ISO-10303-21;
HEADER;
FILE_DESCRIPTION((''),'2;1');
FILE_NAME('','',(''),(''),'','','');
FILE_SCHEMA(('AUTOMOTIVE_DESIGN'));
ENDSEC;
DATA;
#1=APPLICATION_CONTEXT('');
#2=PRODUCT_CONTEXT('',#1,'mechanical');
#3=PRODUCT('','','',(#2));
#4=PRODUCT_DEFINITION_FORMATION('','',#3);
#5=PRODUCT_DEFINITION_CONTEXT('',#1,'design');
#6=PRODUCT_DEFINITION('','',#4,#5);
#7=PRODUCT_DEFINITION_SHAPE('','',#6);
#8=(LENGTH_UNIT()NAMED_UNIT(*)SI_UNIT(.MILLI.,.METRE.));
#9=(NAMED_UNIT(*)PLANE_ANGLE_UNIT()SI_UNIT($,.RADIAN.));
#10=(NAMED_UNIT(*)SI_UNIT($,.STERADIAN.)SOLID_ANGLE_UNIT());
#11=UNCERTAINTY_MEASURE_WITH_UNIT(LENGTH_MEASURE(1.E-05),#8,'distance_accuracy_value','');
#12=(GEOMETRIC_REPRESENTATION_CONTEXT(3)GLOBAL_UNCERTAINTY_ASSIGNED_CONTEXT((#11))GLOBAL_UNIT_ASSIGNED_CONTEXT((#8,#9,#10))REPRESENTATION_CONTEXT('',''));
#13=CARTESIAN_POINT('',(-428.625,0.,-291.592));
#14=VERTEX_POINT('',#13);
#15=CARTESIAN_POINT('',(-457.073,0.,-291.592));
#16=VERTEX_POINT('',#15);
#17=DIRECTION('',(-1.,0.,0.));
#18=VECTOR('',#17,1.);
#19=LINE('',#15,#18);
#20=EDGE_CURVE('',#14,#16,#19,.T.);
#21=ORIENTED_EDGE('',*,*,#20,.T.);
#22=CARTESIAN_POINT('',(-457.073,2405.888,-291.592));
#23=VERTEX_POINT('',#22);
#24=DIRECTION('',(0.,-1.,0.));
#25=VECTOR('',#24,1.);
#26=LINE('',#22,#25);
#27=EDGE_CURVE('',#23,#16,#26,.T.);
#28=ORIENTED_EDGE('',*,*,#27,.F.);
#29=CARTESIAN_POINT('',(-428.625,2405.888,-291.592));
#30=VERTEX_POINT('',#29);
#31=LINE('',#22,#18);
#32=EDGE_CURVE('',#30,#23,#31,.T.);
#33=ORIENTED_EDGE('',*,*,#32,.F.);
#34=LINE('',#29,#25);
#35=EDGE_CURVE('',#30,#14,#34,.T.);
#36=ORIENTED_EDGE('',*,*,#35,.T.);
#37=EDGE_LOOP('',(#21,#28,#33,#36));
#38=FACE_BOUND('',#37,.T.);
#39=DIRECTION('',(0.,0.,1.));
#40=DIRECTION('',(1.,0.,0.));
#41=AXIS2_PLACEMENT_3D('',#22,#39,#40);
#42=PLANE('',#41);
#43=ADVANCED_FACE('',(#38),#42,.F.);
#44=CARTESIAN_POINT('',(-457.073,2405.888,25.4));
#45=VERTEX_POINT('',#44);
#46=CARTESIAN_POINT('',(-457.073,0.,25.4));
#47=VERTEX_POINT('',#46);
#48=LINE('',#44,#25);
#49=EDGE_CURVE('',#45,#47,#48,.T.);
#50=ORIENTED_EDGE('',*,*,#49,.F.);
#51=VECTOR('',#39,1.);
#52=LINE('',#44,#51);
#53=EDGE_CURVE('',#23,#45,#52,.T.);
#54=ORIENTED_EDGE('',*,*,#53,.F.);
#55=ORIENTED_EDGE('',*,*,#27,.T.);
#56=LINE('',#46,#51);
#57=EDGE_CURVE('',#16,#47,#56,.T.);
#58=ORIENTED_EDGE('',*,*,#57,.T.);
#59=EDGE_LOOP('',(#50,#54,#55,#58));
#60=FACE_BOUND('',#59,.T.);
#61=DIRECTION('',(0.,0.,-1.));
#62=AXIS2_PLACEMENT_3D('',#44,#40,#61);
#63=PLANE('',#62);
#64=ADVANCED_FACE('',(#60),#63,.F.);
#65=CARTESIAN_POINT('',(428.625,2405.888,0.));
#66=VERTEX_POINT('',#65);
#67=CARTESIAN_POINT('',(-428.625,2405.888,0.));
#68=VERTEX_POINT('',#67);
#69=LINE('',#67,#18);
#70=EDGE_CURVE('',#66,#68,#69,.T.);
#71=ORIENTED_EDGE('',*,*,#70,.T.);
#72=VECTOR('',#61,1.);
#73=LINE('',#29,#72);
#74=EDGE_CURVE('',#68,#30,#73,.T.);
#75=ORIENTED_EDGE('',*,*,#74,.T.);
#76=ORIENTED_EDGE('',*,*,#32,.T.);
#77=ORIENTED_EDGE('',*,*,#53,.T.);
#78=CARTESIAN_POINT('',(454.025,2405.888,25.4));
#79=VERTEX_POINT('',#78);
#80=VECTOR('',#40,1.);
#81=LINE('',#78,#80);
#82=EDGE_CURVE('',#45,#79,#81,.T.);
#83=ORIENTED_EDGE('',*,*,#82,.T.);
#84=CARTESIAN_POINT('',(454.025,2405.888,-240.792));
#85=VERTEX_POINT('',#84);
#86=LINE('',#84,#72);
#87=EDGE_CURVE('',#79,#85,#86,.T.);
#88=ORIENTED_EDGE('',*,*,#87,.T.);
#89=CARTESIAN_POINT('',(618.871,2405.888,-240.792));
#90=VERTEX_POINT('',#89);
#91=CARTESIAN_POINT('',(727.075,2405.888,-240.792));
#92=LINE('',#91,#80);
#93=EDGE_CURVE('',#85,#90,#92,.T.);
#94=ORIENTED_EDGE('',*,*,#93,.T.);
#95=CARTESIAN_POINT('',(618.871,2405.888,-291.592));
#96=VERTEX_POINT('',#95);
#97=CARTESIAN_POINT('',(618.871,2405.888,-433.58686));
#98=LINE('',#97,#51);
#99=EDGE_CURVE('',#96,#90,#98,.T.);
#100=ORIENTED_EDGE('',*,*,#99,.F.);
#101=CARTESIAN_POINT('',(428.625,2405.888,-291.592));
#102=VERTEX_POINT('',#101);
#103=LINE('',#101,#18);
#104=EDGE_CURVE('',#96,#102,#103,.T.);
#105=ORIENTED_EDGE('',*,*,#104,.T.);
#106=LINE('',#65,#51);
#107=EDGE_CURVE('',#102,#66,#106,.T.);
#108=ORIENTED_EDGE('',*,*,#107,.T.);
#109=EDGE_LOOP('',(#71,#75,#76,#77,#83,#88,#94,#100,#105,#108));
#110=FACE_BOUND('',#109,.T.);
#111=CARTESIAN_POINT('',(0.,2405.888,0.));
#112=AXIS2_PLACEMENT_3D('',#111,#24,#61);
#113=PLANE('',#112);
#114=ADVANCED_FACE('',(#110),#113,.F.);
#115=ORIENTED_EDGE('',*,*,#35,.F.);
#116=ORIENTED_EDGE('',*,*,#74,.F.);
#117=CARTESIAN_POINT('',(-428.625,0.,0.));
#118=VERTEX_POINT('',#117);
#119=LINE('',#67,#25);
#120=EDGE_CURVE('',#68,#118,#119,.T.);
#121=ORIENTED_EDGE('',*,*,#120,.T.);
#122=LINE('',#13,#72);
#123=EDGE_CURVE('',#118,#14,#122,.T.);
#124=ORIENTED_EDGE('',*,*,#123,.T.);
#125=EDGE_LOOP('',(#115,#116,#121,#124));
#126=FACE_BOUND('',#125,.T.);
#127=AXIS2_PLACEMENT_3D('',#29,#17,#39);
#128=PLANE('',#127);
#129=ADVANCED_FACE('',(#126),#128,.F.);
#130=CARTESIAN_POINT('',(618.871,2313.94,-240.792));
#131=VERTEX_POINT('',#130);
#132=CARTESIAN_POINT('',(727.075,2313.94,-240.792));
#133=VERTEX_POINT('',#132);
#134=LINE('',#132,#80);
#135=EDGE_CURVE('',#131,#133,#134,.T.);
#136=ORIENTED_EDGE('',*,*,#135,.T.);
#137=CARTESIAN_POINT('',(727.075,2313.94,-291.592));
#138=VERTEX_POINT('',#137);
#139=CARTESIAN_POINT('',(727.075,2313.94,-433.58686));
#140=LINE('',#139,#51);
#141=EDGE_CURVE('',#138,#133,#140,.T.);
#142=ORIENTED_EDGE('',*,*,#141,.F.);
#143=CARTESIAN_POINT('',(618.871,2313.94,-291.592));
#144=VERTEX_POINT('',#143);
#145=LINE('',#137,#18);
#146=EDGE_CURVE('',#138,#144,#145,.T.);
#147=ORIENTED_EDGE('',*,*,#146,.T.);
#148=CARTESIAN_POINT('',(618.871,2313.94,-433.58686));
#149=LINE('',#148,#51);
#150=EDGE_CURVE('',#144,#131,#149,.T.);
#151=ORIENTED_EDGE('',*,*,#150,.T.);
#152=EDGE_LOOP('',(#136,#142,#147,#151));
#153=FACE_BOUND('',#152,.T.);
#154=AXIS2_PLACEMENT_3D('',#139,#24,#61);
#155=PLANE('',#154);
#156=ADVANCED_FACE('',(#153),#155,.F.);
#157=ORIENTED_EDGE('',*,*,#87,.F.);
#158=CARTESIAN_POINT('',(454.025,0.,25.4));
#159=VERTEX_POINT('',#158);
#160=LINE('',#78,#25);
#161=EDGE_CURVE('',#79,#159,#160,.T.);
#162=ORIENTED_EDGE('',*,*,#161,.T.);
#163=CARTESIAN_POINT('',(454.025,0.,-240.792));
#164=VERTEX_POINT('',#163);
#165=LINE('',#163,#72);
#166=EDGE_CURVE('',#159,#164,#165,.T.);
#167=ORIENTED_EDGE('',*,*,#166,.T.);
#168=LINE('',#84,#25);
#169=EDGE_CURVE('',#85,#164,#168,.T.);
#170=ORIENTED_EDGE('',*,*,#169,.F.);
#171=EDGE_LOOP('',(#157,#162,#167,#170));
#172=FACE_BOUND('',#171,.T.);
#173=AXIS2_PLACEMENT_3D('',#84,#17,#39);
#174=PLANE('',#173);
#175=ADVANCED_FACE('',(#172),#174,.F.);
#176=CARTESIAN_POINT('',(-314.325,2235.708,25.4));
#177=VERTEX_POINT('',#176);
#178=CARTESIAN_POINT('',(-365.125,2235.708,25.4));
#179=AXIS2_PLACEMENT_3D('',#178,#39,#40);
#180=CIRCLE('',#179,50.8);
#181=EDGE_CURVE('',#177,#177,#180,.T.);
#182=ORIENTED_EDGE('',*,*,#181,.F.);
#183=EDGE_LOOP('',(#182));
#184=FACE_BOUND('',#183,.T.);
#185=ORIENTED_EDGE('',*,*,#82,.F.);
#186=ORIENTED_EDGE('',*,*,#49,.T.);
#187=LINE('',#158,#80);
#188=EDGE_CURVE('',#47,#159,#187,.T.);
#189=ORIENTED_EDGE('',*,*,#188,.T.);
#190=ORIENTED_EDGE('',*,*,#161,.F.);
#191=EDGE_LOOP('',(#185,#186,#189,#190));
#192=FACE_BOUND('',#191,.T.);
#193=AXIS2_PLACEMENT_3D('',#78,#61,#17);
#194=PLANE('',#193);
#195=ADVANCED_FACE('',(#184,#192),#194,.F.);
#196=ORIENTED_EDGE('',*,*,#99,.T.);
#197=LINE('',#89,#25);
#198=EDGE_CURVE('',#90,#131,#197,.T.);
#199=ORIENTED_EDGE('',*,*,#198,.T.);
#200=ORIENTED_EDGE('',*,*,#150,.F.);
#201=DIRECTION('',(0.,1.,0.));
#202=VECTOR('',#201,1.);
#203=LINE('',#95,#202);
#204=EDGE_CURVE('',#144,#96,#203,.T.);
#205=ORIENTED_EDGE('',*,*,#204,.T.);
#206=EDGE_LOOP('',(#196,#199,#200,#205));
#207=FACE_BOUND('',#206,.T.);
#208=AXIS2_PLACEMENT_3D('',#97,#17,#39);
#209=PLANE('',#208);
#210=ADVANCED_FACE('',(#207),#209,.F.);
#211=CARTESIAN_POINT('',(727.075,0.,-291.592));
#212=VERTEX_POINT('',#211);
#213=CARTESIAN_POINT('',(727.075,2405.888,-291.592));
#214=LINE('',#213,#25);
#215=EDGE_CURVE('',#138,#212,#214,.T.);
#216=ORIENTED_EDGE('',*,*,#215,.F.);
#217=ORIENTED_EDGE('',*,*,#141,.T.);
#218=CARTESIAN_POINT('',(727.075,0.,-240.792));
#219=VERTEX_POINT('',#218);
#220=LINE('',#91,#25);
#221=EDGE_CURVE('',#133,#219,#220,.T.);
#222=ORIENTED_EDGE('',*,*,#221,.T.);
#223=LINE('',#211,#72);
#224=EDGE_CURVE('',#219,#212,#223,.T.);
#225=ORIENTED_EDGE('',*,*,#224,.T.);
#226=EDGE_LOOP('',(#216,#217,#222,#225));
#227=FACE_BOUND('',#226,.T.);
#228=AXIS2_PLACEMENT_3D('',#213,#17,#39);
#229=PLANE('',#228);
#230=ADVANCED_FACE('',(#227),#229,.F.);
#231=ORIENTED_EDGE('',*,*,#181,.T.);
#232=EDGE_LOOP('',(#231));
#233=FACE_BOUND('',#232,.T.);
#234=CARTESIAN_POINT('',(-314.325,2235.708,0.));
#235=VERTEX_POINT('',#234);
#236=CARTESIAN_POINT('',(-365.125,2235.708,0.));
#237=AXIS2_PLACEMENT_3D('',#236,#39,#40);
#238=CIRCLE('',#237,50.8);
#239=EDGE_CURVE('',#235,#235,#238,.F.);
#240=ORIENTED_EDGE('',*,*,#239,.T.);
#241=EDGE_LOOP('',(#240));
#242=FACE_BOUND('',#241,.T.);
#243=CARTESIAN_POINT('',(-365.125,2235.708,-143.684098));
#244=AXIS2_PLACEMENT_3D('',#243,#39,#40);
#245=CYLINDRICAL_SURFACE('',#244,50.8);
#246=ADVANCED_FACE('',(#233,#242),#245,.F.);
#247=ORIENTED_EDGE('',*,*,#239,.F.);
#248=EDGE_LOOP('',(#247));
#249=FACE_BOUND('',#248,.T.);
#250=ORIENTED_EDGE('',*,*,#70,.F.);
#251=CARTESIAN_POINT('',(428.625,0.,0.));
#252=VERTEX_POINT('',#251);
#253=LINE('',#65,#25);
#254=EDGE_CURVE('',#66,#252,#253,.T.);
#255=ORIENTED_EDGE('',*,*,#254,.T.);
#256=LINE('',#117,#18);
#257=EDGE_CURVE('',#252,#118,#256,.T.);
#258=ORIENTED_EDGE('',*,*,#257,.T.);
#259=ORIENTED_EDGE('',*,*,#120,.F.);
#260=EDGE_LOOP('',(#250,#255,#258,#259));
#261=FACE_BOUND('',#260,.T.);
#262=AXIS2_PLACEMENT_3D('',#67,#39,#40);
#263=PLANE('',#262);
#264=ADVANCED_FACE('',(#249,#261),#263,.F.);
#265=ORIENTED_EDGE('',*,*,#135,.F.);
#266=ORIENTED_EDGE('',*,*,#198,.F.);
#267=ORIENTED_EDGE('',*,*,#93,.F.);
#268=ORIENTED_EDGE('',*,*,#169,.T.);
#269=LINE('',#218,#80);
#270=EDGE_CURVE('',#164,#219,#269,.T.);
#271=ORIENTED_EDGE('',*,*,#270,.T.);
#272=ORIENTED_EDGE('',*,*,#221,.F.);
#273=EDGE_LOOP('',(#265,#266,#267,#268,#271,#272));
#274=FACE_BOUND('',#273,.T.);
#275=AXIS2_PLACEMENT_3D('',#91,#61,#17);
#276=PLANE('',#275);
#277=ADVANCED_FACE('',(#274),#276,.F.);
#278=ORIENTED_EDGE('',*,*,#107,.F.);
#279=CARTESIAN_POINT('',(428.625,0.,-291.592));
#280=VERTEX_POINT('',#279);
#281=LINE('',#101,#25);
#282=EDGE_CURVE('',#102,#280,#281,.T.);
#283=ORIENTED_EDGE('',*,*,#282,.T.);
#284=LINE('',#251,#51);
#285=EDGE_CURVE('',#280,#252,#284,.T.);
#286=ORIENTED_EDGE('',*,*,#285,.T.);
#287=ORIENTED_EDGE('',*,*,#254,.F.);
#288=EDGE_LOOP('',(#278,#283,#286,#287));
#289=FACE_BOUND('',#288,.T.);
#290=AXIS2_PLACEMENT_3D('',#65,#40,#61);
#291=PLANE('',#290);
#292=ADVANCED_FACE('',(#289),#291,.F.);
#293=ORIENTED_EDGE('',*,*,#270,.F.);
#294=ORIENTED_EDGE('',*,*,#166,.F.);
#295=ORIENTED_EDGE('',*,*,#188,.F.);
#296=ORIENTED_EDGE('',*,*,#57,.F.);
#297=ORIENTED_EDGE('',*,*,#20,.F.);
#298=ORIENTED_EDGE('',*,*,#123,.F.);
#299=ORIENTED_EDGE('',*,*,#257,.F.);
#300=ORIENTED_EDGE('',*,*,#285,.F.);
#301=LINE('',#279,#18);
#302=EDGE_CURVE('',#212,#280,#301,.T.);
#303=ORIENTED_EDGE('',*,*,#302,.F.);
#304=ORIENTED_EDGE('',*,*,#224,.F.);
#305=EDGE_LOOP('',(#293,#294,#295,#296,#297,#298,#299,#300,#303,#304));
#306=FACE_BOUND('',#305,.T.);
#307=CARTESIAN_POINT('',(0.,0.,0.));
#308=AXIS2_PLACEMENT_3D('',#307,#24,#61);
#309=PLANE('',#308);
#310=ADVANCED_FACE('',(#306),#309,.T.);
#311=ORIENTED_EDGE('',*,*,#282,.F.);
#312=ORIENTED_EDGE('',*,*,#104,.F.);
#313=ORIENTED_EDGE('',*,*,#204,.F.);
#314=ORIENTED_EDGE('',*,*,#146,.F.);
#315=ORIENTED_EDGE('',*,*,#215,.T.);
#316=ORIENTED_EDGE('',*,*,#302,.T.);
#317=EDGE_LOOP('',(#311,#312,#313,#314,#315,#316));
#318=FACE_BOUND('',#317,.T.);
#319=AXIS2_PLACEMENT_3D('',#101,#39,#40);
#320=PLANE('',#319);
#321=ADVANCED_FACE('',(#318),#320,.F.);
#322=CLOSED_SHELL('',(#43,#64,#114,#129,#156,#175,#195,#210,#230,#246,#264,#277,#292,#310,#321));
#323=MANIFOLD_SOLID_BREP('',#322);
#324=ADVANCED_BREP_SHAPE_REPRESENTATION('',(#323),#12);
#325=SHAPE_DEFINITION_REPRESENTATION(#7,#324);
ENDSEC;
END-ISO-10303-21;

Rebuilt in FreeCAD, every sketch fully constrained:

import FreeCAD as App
import Part
import Sketcher
from FreeCAD import Vector
Q = App.Units.Quantity

doc = App.newDocument("Part")
body = doc.addObject("PartDesign::Body", "Body")

sketch1 = doc.addObject("Sketcher::SketchObject", "Sketch")
body.addObject(sketch1)
sketch1.AttachmentSupport = (doc.XZ_Plane, [""])
sketch1.MapMode = "FlatFace"
sketch1.addGeometry(Part.LineSegment(Vector(-429, -292, 0), Vector(-457, -292, 0)), False)
sketch1.addGeometry(Part.LineSegment(Vector(-457, -292, 0), Vector(-457, 25, 0)), False)
sketch1.addGeometry(Part.LineSegment(Vector(-457, 25, 0), Vector(454, 25, 0)), False)
sketch1.addGeometry(Part.LineSegment(Vector(454, 25, 0), Vector(454, -241, 0)), False)
sketch1.addGeometry(Part.LineSegment(Vector(454, -241, 0), Vector(727, -241, 0)), False)
sketch1.addGeometry(Part.LineSegment(Vector(727, -241, 0), Vector(727, -292, 0)), False)
sketch1.addGeometry(Part.LineSegment(Vector(727, -292, 0), Vector(429, -292, 0)), False)
sketch1.addGeometry(Part.LineSegment(Vector(429, -292, 0), Vector(429, 0, 0)), False)
sketch1.addGeometry(Part.LineSegment(Vector(429, 0, 0), Vector(-429, 0, 0)), False)
sketch1.addGeometry(Part.LineSegment(Vector(-429, 0, 0), Vector(-429, -292, 0)), False)
sketch1.addConstraint(Sketcher.Constraint("Coincident", 0, 2, 1, 1))
sketch1.addConstraint(Sketcher.Constraint("Coincident", 1, 2, 2, 1))
sketch1.addConstraint(Sketcher.Constraint("Coincident", 2, 2, 3, 1))
sketch1.addConstraint(Sketcher.Constraint("Coincident", 3, 2, 4, 1))
sketch1.addConstraint(Sketcher.Constraint("Coincident", 4, 2, 5, 1))
sketch1.addConstraint(Sketcher.Constraint("Coincident", 5, 2, 6, 1))
sketch1.addConstraint(Sketcher.Constraint("Coincident", 6, 2, 7, 1))
sketch1.addConstraint(Sketcher.Constraint("Coincident", 7, 2, 8, 1))
sketch1.addConstraint(Sketcher.Constraint("Coincident", 8, 2, 9, 1))
sketch1.addConstraint(Sketcher.Constraint("Coincident", 9, 2, 0, 1))
sketch1.addConstraint(Sketcher.Constraint("Horizontal", 0))
sketch1.addConstraint(Sketcher.Constraint("Vertical", 1))
sketch1.addConstraint(Sketcher.Constraint("Horizontal", 2))
sketch1.addConstraint(Sketcher.Constraint("Vertical", 3))
sketch1.addConstraint(Sketcher.Constraint("Horizontal", 4))
sketch1.addConstraint(Sketcher.Constraint("Vertical", 5))
sketch1.addConstraint(Sketcher.Constraint("Horizontal", 6))
sketch1.addConstraint(Sketcher.Constraint("Vertical", 7))
sketch1.addConstraint(Sketcher.Constraint("Horizontal", 8))
sketch1.addConstraint(Sketcher.Constraint("Vertical", 9))
sketch1.addConstraint(Sketcher.Constraint("Symmetric", 7, 2, 8, 2, -1, 1))
sketch1.addConstraint(Sketcher.Constraint("Horizontal", 0, 2, 5, 2))
sketch1.addConstraint(Sketcher.Constraint("DistanceY", 5, 2, 5, 1, Q("2 in")))
sketch1.addConstraint(Sketcher.Constraint("DistanceY", -1, 1, 1, 2, Q("1 in")))
sketch1.addConstraint(Sketcher.Constraint("DistanceX", 6, 2, 3, 2, Q("1 in")))
sketch1.addConstraint(Sketcher.Constraint("DistanceX", 0, 2, 0, 1, Q("1.12 in")))
sketch1.addConstraint(Sketcher.Constraint("DistanceX", 2, 1, 2, 2, Q("35.87 in")))
sketch1.addConstraint(Sketcher.Constraint("DistanceX", 4, 1, 4, 2, Q("10.75 in")))
sketch1.addConstraint(Sketcher.Constraint("DistanceY", 1, 1, 1, 2, Q("12.48 in")))
pad1 = doc.addObject("PartDesign::Pad", "Pad")
body.addObject(pad1)
pad1.Profile = sketch1
pad1.Length = Q("94.72 in")
pad1.Reversed = True

sketch2 = doc.addObject("Sketcher::SketchObject", "Sketch001")
body.addObject(sketch2)
sketch2.AttachmentSupport = (doc.XY_Plane, [""])
sketch2.MapMode = "FlatFace"
sketch2.AttachmentOffset = App.Placement(Vector(0, 0, -9.48 * 25.4), App.Rotation())
sketch2.addGeometry(Part.LineSegment(Vector(619, 2406, 0), Vector(619, 2314, 0)), False)
sketch2.addGeometry(Part.LineSegment(Vector(619, 2314, 0), Vector(727, 2314, 0)), False)
sketch2.addGeometry(Part.LineSegment(Vector(727, 2314, 0), Vector(727, 2406, 0)), False)
sketch2.addGeometry(Part.LineSegment(Vector(727, 2406, 0), Vector(619, 2406, 0)), False)
sketch2.addConstraint(Sketcher.Constraint("Coincident", 0, 2, 1, 1))
sketch2.addConstraint(Sketcher.Constraint("Coincident", 1, 2, 2, 1))
sketch2.addConstraint(Sketcher.Constraint("Coincident", 2, 2, 3, 1))
sketch2.addConstraint(Sketcher.Constraint("Coincident", 3, 2, 0, 1))
sketch2.addConstraint(Sketcher.Constraint("Vertical", 0))
sketch2.addConstraint(Sketcher.Constraint("Horizontal", 1))
sketch2.addConstraint(Sketcher.Constraint("Vertical", 2))
sketch2.addConstraint(Sketcher.Constraint("Horizontal", 3))
sketch2.addConstraint(Sketcher.Constraint("DistanceX", 1, 1, 1, 2, Q("4.26 in")))
sketch2.addConstraint(Sketcher.Constraint("DistanceY", 0, 2, 0, 1, Q("3.62 in")))
sketch2.addConstraint(Sketcher.Constraint("DistanceY", -1, 1, 0, 2, Q("91.1 in")))
sketch2.addConstraint(Sketcher.Constraint("DistanceX", -1, 1, 0, 2, Q("24.365 in")))
pocket1 = doc.addObject("PartDesign::Pocket", "Pocket")
body.addObject(pocket1)
pocket1.Profile = sketch2
pocket1.Length = Q("2 in")

sketch3 = doc.addObject("Sketcher::SketchObject", "Sketch002")
body.addObject(sketch3)
sketch3.AttachmentSupport = (doc.XY_Plane, [""])
sketch3.MapMode = "FlatFace"
sketch3.AttachmentOffset = App.Placement(Vector(0, 0, 1 * 25.4), App.Rotation())
sketch3.addGeometry(Part.Circle(Vector(-365, 2236, 0), Vector(0, 0, 1), 51), False)
sketch3.addConstraint(Sketcher.Constraint("Diameter", 0, Q("4 in")))
sketch3.addConstraint(Sketcher.Constraint("DistanceY", -1, 1, 0, 3, Q("88.02 in")))
sketch3.addConstraint(Sketcher.Constraint("DistanceX", 0, 3, -1, 1, Q("14.375 in")))
pocket2 = doc.addObject("PartDesign::Pocket", "Pocket001")
body.addObject(pocket2)
pocket2.Profile = sketch3
pocket2.Length = Q("1 in")

doc.recompute()
